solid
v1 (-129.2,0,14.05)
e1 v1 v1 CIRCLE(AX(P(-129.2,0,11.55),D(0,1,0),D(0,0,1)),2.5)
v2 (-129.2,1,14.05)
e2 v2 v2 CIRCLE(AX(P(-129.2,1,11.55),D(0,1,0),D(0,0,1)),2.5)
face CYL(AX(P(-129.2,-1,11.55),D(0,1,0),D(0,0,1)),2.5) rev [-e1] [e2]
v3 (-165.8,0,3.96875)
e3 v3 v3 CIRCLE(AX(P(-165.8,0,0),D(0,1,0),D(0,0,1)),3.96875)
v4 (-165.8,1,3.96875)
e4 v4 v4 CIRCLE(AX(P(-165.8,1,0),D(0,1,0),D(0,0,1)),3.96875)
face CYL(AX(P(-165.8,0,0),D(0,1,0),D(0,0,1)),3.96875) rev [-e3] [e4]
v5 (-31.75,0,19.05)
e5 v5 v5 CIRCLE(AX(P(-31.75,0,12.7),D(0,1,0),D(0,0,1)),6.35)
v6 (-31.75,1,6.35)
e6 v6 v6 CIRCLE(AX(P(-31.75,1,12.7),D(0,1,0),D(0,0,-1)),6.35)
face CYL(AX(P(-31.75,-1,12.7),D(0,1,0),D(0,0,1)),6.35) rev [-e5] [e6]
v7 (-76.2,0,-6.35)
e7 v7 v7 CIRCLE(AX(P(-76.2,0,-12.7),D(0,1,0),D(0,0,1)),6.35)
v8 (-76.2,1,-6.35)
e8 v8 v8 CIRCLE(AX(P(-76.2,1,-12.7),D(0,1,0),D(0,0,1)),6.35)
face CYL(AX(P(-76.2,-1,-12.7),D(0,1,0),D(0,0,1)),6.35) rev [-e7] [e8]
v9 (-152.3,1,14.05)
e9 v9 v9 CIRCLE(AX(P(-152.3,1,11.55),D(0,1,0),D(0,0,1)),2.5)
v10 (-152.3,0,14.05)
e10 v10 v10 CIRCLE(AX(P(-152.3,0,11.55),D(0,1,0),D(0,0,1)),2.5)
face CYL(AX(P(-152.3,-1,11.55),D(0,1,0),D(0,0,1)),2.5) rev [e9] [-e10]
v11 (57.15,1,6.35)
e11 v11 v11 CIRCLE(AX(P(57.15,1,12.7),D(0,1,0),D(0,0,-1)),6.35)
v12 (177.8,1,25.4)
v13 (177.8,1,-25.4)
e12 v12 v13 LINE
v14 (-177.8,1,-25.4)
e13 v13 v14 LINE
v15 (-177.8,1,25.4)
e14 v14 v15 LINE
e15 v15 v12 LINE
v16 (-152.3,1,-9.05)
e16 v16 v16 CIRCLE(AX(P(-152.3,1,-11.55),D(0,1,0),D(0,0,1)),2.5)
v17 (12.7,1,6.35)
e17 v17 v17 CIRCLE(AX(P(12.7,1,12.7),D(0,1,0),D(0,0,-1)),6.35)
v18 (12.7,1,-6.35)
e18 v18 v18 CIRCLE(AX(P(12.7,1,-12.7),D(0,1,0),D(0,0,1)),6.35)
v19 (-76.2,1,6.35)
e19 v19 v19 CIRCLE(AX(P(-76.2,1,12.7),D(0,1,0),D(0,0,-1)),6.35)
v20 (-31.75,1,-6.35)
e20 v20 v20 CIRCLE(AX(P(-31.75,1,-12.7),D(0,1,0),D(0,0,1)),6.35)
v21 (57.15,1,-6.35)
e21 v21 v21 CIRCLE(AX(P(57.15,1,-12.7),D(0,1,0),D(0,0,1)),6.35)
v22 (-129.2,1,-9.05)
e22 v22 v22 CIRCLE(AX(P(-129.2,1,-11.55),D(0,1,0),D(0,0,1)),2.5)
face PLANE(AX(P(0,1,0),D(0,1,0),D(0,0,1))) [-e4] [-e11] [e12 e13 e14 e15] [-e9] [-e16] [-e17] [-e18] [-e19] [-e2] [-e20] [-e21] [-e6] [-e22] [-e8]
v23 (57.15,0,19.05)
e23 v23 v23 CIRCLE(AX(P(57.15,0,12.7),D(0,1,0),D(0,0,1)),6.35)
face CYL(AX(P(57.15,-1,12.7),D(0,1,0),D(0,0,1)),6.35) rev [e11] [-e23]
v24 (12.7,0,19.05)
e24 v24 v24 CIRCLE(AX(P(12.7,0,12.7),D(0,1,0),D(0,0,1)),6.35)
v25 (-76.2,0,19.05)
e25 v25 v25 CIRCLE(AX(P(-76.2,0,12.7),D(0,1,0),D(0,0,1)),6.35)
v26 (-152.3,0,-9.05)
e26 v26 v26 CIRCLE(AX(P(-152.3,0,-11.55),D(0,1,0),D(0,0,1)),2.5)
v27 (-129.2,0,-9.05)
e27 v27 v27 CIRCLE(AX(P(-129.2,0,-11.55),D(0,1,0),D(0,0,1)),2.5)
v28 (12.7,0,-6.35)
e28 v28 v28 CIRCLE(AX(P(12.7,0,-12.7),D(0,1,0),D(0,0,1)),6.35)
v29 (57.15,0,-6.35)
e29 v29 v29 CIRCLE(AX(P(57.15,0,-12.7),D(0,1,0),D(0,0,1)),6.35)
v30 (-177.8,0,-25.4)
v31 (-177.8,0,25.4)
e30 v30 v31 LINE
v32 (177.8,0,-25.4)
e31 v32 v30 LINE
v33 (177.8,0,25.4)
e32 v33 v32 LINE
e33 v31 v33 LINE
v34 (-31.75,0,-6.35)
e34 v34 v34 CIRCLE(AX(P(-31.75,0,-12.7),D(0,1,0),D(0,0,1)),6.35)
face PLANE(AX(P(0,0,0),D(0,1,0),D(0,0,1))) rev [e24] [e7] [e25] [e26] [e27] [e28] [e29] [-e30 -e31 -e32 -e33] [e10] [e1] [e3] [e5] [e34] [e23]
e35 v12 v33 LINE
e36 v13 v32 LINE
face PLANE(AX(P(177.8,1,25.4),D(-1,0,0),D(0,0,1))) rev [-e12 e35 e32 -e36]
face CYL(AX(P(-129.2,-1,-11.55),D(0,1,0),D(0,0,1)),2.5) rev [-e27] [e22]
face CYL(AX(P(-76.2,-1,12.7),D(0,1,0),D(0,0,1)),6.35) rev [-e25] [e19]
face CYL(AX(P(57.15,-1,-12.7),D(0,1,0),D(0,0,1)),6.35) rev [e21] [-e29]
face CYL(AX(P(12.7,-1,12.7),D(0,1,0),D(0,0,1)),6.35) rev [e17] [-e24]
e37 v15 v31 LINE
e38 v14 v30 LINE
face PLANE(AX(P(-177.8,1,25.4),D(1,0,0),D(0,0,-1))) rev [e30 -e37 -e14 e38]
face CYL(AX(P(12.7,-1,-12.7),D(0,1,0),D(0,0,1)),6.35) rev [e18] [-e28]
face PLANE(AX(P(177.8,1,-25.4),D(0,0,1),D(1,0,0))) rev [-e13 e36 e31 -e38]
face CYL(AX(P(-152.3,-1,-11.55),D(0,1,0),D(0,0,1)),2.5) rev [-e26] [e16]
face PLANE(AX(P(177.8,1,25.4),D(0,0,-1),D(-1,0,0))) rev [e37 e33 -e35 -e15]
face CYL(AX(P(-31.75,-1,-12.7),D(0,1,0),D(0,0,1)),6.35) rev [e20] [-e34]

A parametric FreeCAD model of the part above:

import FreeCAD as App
import Part
import Sketcher

V = App.Vector
Q = App.Units.Quantity


def add_polygon(sketch, points):
    """Adds a closed chain of lines whose ends are joined by coincident constraints."""
    first, n = sketch.GeometryCount, len(points)
    for a, b in zip(points, points[1:] + points[:1]):
        sketch.addGeometry(Part.LineSegment(App.Vector(*a, 0), App.Vector(*b, 0)), False)
    for i in range(n):
        sketch.addConstraint(Sketcher.Constraint("Coincident", first + i, 2, first + (i + 1) % n, 1))

doc = App.newDocument("Part")
body = doc.addObject("PartDesign::Body", "Body")

# Sketch on XZ plane
sketch1 = body.newObject("Sketcher::SketchObject", "Sketch")
sketch1.AttachmentSupport = (doc.getObject("XZ_Plane"), [""])
sketch1.MapMode = "FlatFace"
add_polygon(sketch1, [(-177.8, -25.4), (-177.8, 25.4), (177.8, 25.4), (177.8, -25.4)])  # lines 0-3
sketch1.addConstraint([
    Sketcher.Constraint("Vertical", 0),
    Sketcher.Constraint("Horizontal", 1),
    Sketcher.Constraint("Vertical", 2),
    Sketcher.Constraint("Horizontal", 3),
    Sketcher.Constraint("Symmetric", 0, 2, 2, 2, -1, 1),
    Sketcher.Constraint("DistanceX", 1, 1, 1, 2, Q("14 in")),
    Sketcher.Constraint("DistanceY", 0, 1, 0, 2, Q("2 in")),
])
pad1 = body.newObject("PartDesign::Pad", "Pad")
pad1.Profile = sketch1
pad1.Length = 1
pad1.Reversed = True

# Sketch on XZ plane
sketch2 = body.newObject("Sketcher::SketchObject", "Sketch001")
sketch2.AttachmentSupport = (doc.getObject("XZ_Plane"), [""])
sketch2.MapMode = "FlatFace"
sketch2.AttachmentOffset = App.Placement(V(0, 0, -1), App.Rotation())
sketch2.addGeometry(Part.Circle(V(-165.8, 0, 0), V(0, 0, 1), 3.96875), False)
sketch2.addConstraint([
    Sketcher.Constraint("PointOnObject", 0, 3, -1),
    Sketcher.Constraint("Diameter", 0, Q("0.3125 in")),
    Sketcher.Constraint("DistanceX", 0, 3, -1, 1, 165.8),
])
pocket1 = body.newObject("PartDesign::Pocket", "Pocket")
pocket1.Profile = sketch2
pocket1.Length = 1
pocket1.Reversed = True

# Sketch on XZ plane
sketch3 = body.newObject("Sketcher::SketchObject", "Sketch002")
sketch3.AttachmentSupport = (doc.getObject("XZ_Plane"), [""])
sketch3.MapMode = "FlatFace"
sketch3.AttachmentOffset = App.Placement(V(0, 0, -1), App.Rotation())
sketch3.addGeometry([
    Part.Circle(V(-152.3, -11.55, 0), V(0, 0, 1), 2.5),
    Part.Circle(V(-129.2, -11.55, 0), V(0, 0, 1), 2.5),
    Part.Circle(V(-129.2, 11.55, 0), V(0, 0, 1), 2.5),
    Part.Circle(V(-152.3, 11.55, 0), V(0, 0, 1), 2.5),
], False)
sketch3.addConstraint([
    Sketcher.Constraint("Equal", 0, 1),
    Sketcher.Constraint("Equal", 1, 2),
    Sketcher.Constraint("Equal", 2, 3),
    Sketcher.Constraint("Symmetric", 1, 3, 2, 3, -1),
    Sketcher.Constraint("Symmetric", 0, 3, 3, 3, -1),
    Sketcher.Constraint("Horizontal", 0, 3, 1, 3),
    Sketcher.Constraint("Diameter", 0, 5.0),
    Sketcher.Constraint("DistanceX", 0, 3, -1, 1, 152.3),
    Sketcher.Constraint("DistanceY", 0, 3, -1, 1, 11.55),
    Sketcher.Constraint("DistanceX", 1, 3, -1, 1, 129.2),
])
pocket2 = body.newObject("PartDesign::Pocket", "Pocket001")
pocket2.Profile = sketch3
pocket2.Length = 2
pocket2.Reversed = True

# Sketch on XZ plane
sketch4 = body.newObject("Sketcher::SketchObject", "Sketch003")
sketch4.AttachmentSupport = (doc.getObject("XZ_Plane"), [""])
sketch4.MapMode = "FlatFace"
sketch4.AttachmentOffset = App.Placement(V(0, 0, -1), App.Rotation())
sketch4.addGeometry([
    Part.Circle(V(-76.2, -12.7, 0), V(0, 0, 1), 6.35),  # 0
    Part.Circle(V(12.7, -12.7, 0), V(0, 0, 1), 6.35),  # 1
    Part.Circle(V(12.7, 12.7, 0), V(0, 0, 1), 6.35),  # 2
    Part.Circle(V(-76.2, 12.7, 0), V(0, 0, 1), 6.35),  # 3
    Part.Circle(V(-31.75, -12.7, 0), V(0, 0, 1), 6.35),  # 4
    Part.Circle(V(57.15, -12.7, 0), V(0, 0, 1), 6.35),  # 5
    Part.Circle(V(57.15, 12.7, 0), V(0, 0, 1), 6.35),  # 6
    Part.Circle(V(-31.75, 12.7, 0), V(0, 0, 1), 6.35),  # 7
], False)
sketch4.addConstraint([
    Sketcher.Constraint("Equal", 0, 1),
    Sketcher.Constraint("Equal", 1, 2),
    Sketcher.Constraint("Equal", 2, 3),
    Sketcher.Constraint("Equal", 3, 4),
    Sketcher.Constraint("Equal", 4, 5),
    Sketcher.Constraint("Equal", 5, 6),
    Sketcher.Constraint("Equal", 6, 7),
    Sketcher.Constraint("Symmetric", 1, 3, 2, 3, -1),
    Sketcher.Constraint("Symmetric", 0, 3, 3, 3, -1),
    Sketcher.Constraint("Symmetric", 5, 3, 6, 3, -1),
    Sketcher.Constraint("Symmetric", 4, 3, 7, 3, -1),
    Sketcher.Constraint("Horizontal", 0, 3, 1, 3),
    Sketcher.Constraint("Horizontal", 1, 3, 4, 3),
    Sketcher.Constraint("Horizontal", 4, 3, 5, 3),
    Sketcher.Constraint("Diameter", 0, Q("0.5 in")),
    Sketcher.Constraint("DistanceX", 0, 3, -1, 1, Q("3 in")),
    Sketcher.Constraint("DistanceY", 1, 3, 2, 3, Q("1 in")),
    Sketcher.Constraint("DistanceX", -1, 1, 1, 3, Q("0.5 in")),
    Sketcher.Constraint("DistanceX", 4, 3, 5, 3, Q("3.5 in")),
    Sketcher.Constraint("DistanceX", 4, 3, -1, 1, Q("1.25 in")),
])
pocket3 = body.newObject("PartDesign::Pocket", "Pocket002")
pocket3.Profile = sketch4
pocket3.Length = 2
pocket3.Reversed = True

doc.recompute()
